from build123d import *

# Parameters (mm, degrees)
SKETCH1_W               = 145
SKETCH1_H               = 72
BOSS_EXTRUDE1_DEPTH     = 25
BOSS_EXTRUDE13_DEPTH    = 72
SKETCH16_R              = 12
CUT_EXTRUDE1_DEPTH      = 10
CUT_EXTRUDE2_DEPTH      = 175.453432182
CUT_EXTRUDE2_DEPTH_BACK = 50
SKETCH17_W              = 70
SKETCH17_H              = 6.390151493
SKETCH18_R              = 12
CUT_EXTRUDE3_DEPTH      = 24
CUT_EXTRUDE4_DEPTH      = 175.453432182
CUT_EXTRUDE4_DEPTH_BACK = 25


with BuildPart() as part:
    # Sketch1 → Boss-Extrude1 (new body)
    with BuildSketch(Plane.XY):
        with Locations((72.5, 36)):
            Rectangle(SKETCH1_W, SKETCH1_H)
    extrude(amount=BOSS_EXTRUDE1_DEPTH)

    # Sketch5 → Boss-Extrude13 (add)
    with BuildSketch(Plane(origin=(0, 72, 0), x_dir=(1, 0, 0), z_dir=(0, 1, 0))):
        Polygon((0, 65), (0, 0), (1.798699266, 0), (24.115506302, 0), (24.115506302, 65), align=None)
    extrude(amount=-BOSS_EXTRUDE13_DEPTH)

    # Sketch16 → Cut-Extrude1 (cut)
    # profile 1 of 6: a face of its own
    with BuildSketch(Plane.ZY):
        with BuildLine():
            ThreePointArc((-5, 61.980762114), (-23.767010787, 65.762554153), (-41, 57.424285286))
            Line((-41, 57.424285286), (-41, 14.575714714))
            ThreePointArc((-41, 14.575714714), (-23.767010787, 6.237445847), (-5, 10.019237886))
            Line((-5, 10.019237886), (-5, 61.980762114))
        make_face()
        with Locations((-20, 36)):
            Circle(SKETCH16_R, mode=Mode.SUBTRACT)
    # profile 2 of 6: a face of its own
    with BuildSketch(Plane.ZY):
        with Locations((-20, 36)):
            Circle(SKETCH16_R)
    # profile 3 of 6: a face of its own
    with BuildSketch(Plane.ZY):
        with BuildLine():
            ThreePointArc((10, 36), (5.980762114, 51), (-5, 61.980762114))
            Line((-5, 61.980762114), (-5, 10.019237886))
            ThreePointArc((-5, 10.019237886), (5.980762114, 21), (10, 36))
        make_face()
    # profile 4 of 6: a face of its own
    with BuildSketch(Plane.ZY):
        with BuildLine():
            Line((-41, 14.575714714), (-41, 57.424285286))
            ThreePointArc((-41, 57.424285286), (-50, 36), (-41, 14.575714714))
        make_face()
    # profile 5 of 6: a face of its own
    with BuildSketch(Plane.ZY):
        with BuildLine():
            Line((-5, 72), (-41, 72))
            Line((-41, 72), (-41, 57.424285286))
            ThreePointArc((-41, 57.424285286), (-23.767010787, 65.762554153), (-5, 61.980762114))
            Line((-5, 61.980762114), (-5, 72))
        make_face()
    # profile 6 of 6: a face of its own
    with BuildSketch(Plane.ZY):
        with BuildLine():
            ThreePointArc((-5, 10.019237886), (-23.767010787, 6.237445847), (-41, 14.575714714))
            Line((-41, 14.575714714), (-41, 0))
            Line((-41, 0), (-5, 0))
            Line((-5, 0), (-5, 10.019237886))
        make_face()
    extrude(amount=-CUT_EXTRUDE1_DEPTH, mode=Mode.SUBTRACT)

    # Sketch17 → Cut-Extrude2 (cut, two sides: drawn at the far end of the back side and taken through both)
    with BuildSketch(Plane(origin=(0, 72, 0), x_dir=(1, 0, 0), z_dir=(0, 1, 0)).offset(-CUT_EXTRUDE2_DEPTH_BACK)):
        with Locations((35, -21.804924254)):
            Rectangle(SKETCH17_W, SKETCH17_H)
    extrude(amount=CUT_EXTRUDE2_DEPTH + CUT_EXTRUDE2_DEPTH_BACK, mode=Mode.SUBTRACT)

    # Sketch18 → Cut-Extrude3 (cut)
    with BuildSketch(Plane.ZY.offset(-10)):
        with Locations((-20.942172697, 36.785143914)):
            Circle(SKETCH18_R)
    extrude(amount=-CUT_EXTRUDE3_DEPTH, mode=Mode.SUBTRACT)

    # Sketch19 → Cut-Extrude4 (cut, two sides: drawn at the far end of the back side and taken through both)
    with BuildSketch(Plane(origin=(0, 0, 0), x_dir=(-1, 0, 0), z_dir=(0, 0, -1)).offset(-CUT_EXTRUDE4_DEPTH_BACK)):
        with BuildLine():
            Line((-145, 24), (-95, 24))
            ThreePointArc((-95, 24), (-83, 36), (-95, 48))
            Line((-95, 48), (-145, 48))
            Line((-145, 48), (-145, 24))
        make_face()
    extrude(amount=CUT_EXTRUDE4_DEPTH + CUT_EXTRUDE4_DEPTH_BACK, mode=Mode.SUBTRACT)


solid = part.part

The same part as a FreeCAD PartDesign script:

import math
import FreeCAD as App
import Part
import Sketcher


def add_polygon(sketch, points):
    """Adds a closed chain of lines whose ends are joined by coincident constraints."""
    first, n = sketch.GeometryCount, len(points)
    for a, b in zip(points, points[1:] + points[:1]):
        sketch.addGeometry(Part.LineSegment(App.Vector(*a, 0), App.Vector(*b, 0)), False)
    for i in range(n):
        sketch.addConstraint(Sketcher.Constraint("Coincident", first + i, 2, first + (i + 1) % n, 1))

doc = App.newDocument("Part")
body = doc.addObject("PartDesign::Body", "Body")

# Sketch on XY plane
sketch1 = body.newObject("Sketcher::SketchObject", "Sketch")
sketch1.AttachmentSupport = (doc.getObject("XY_Plane"), [""])
sketch1.MapMode = "FlatFace"
add_polygon(sketch1, [(0, 72), (0, 0), (145, 0), (145, 72)])  # lines 0-3
sketch1.addConstraint(Sketcher.Constraint("Vertical", 0))
sketch1.addConstraint(Sketcher.Constraint("Horizontal", 1))
sketch1.addConstraint(Sketcher.Constraint("Vertical", 2))
sketch1.addConstraint(Sketcher.Constraint("Horizontal", 3))
sketch1.addConstraint(Sketcher.Constraint("Coincident", 0, 2, -1, 1))
sketch1.addConstraint(Sketcher.Constraint("DistanceX", 1, 1, 1, 2, 145.0))
sketch1.addConstraint(Sketcher.Constraint("DistanceY", 0, 2, 0, 1, 72.0))
pad1 = body.newObject("PartDesign::Pad", "Pad")
pad1.Profile = sketch1
pad1.Length = 25

# Sketch on XZ plane
sketch2 = body.newObject("Sketcher::SketchObject", "Sketch001")
sketch2.AttachmentSupport = (doc.getObject("XZ_Plane"), [""])
sketch2.MapMode = "FlatFace"
sketch2.AttachmentOffset = App.Placement(App.Vector(0, 0, -72), App.Rotation())
add_polygon(sketch2, [(0, -65), (0, 0), (24, 0), (24, -65)])  # lines 0-3
sketch2.addConstraint(Sketcher.Constraint("Vertical", 0))
sketch2.addConstraint(Sketcher.Constraint("Horizontal", 1))
sketch2.addConstraint(Sketcher.Constraint("Vertical", 2))
sketch2.addConstraint(Sketcher.Constraint("Horizontal", 3))
sketch2.addConstraint(Sketcher.Constraint("Coincident", 0, 2, -1, 1))
sketch2.addConstraint(Sketcher.Constraint("DistanceY", 0, 1, 0, 2, 65.0))
sketch2.addConstraint(Sketcher.Constraint("DistanceX", 1, 1, 1, 2, 24.115506))
pad2 = body.newObject("PartDesign::Pad", "Pad001")
pad2.Profile = sketch2
pad2.Length = 72

# Sketch on YZ plane
sketch3 = body.newObject("Sketcher::SketchObject", "Sketch002")
sketch3.AttachmentSupport = (doc.getObject("YZ_Plane"), [""])
sketch3.MapMode = "FlatFace"
sketch3.addGeometry(Part.LineSegment(App.Vector(72, -5, 0), App.Vector(72, -41, 0)), False)
sketch3.addGeometry(Part.LineSegment(App.Vector(72, -41, 0), App.Vector(57, -41, 0)), False)
sketch3.addGeometry(Part.ArcOfCircle(Part.Circle(App.Vector(36, -20, 0), App.Vector(0, 0, 1), 30), math.radians(-136), math.radians(-44)), False)
sketch3.addGeometry(Part.LineSegment(App.Vector(15, -41, 0), App.Vector(0, -41, 0)), False)
sketch3.addGeometry(Part.LineSegment(App.Vector(0, -41, 0), App.Vector(0, -5, 0)), False)
sketch3.addGeometry(Part.LineSegment(App.Vector(0, -5, 0), App.Vector(10, -5, 0)), False)
sketch3.addGeometry(Part.ArcOfCircle(Part.Circle(App.Vector(36, -20, 0), App.Vector(0, 0, 1), 30), math.radians(90), math.radians(150)), False)
sketch3.addGeometry(Part.ArcOfCircle(Part.Circle(App.Vector(36, -20, 0), App.Vector(0, 0, 1), 30), math.radians(30), math.radians(90)), False)
sketch3.addGeometry(Part.LineSegment(App.Vector(62, -5, 0), App.Vector(72, -5, 0)), False)
sketch3.addConstraint(Sketcher.Constraint("Coincident", 0, 2, 1, 1))
sketch3.addConstraint(Sketcher.Constraint("Coincident", 1, 2, 2, 2))
sketch3.addConstraint(Sketcher.Constraint("Coincident", 2, 1, 3, 1))
sketch3.addConstraint(Sketcher.Constraint("Coincident", 3, 2, 4, 1))
sketch3.addConstraint(Sketcher.Constraint("Coincident", 4, 2, 5, 1))
sketch3.addConstraint(Sketcher.Constraint("Coincident", 5, 2, 6, 2))
sketch3.addConstraint(Sketcher.Constraint("Tangent", 6, 1, 7, 2))
sketch3.addConstraint(Sketcher.Constraint("Coincident", 7, 1, 8, 1))
sketch3.addConstraint(Sketcher.Constraint("Coincident", 8, 2, 0, 1))
sketch3.addConstraint(Sketcher.Constraint("Vertical", 0))
sketch3.addConstraint(Sketcher.Constraint("Horizontal", 1))
sketch3.addConstraint(Sketcher.Constraint("Horizontal", 3))
sketch3.addConstraint(Sketcher.Constraint("Vertical", 4))
sketch3.addConstraint(Sketcher.Constraint("Horizontal", 5))
sketch3.addConstraint(Sketcher.Constraint("Horizontal", 8))
sketch3.addConstraint(Sketcher.Constraint("Coincident", 6, 3, 2, 3))
sketch3.addConstraint(Sketcher.Constraint("Equal", 2, 6))
sketch3.addConstraint(Sketcher.Constraint("Equal", 6, 7))
sketch3.addConstraint(Sketcher.Constraint("PointOnObject", 3, 2, -2))
sketch3.addConstraint(Sketcher.Constraint("Horizontal", 1, 2, 2, 1))
sketch3.addConstraint(Sketcher.Constraint("Horizontal", 5, 2, 7, 1))
sketch3.addConstraint(Sketcher.Constraint("Vertical", 7, 3, 6, 1))
sketch3.addConstraint(Sketcher.Constraint("Equal", 1, 3))
sketch3.addConstraint(Sketcher.Constraint("Radius", 2, 30.0))
sketch3.addConstraint(Sketcher.Constraint("DistanceY", 0, 2, 0, 1, 36.0))
sketch3.addConstraint(Sketcher.Constraint("DistanceX", -1, 1, 2, 3, 36.0))
sketch3.addConstraint(Sketcher.Constraint("DistanceY", 2, 3, -1, 1, 20.0))
sketch3.addConstraint(Sketcher.Constraint("DistanceY", 0, 2, -1, 1, 41.0))
pocket1 = body.newObject("PartDesign::Pocket", "Pocket")
pocket1.Profile = sketch3
pocket1.Length = 10
pocket1.Reversed = True

# Sketch on XZ plane
sketch4 = body.newObject("Sketcher::SketchObject", "Sketch003")
sketch4.AttachmentSupport = (doc.getObject("XZ_Plane"), [""])
sketch4.MapMode = "FlatFace"
sketch4.AttachmentOffset = App.Placement(App.Vector(0, 0, -72), App.Rotation())
add_polygon(sketch4, [(0, 19), (0, 25), (70, 25), (70, 19)])  # lines 0-3
sketch4.addConstraint(Sketcher.Constraint("Vertical", 0))
sketch4.addConstraint(Sketcher.Constraint("Horizontal", 1))
sketch4.addConstraint(Sketcher.Constraint("Vertical", 2))
sketch4.addConstraint(Sketcher.Constraint("Horizontal", 3))
sketch4.addConstraint(Sketcher.Constraint("PointOnObject", 0, 2, -2))
sketch4.addConstraint(Sketcher.Constraint("DistanceX", 1, 1, 1, 2, 70.0))
sketch4.addConstraint(Sketcher.Constraint("DistanceY", -1, 1, 0, 2, 25.0))
sketch4.addConstraint(Sketcher.Constraint("DistanceY", 0, 1, 0, 2, 6.390151))
pocket2 = body.newObject("PartDesign::Pocket", "Pocket001")
pocket2.Profile = sketch4
pocket2.Type = "TwoLengths"
pocket2.Length = 175.453432
pocket2.Length2 = 50

# Sketch on YZ plane
sketch5 = body.newObject("Sketcher::SketchObject", "Sketch004")
sketch5.AttachmentSupport = (doc.getObject("YZ_Plane"), [""])
sketch5.MapMode = "FlatFace"
sketch5.AttachmentOffset = App.Placement(App.Vector(0, 0, 10), App.Rotation())
sketch5.addGeometry(Part.Circle(App.Vector(37, -21, 0), App.Vector(0, 0, 1), 12), False)
sketch5.addConstraint(Sketcher.Constraint("Diameter", 0, 24.0))
sketch5.addConstraint(Sketcher.Constraint("DistanceX", -1, 1, 0, 3, 36.785144))
sketch5.addConstraint(Sketcher.Constraint("DistanceY", 0, 3, -1, 1, 20.942173))
pocket3 = body.newObject("PartDesign::Pocket", "Pocket002")
pocket3.Profile = sketch5
pocket3.Length = 24
pocket3.Reversed = True

# Sketch on XY plane
sketch6 = body.newObject("Sketcher::SketchObject", "Sketch005")
sketch6.AttachmentSupport = (doc.getObject("XY_Plane"), [""])
sketch6.MapMode = "FlatFace"
sketch6.addGeometry(Part.LineSegment(App.Vector(145, 24, 0), App.Vector(95, 24, 0)), False)
sketch6.addGeometry(Part.ArcOfCircle(Part.Circle(App.Vector(95, 36, 0), App.Vector(0, 0, 1), 12), math.radians(90), math.radians(270)), False)
sketch6.addGeometry(Part.LineSegment(App.Vector(95, 48, 0), App.Vector(145, 48, 0)), False)
sketch6.addGeometry(Part.LineSegment(App.Vector(145, 48, 0), App.Vector(145, 24, 0)), False)
sketch6.addConstraint(Sketcher.Constraint("Tangent", 0, 2, 1, 2))
sketch6.addConstraint(Sketcher.Constraint("Tangent", 1, 1, 2, 1))
sketch6.addConstraint(Sketcher.Constraint("Coincident", 2, 2, 3, 1))
sketch6.addConstraint(Sketcher.Constraint("Coincident", 3, 2, 0, 1))
sketch6.addConstraint(Sketcher.Constraint("Horizontal", 0))
sketch6.addConstraint(Sketcher.Constraint("Horizontal", 2))
sketch6.addConstraint(Sketcher.Constraint("Vertical", 3))
sketch6.addConstraint(Sketcher.Constraint("Radius", 1, 12.0))
sketch6.addConstraint(Sketcher.Constraint("DistanceX", 0, 2, 0, 1, 50.0))
sketch6.addConstraint(Sketcher.Constraint("DistanceX", -1, 1, 1, 3, 95.0))
sketch6.addConstraint(Sketcher.Constraint("DistanceY", -1, 1, 1, 3, 36.0))
pocket4 = body.newObject("PartDesign::Pocket", "Pocket003")
pocket4.Profile = sketch6
pocket4.Type = "ThroughAll"
pocket4.Midplane = True

doc.recompute()
